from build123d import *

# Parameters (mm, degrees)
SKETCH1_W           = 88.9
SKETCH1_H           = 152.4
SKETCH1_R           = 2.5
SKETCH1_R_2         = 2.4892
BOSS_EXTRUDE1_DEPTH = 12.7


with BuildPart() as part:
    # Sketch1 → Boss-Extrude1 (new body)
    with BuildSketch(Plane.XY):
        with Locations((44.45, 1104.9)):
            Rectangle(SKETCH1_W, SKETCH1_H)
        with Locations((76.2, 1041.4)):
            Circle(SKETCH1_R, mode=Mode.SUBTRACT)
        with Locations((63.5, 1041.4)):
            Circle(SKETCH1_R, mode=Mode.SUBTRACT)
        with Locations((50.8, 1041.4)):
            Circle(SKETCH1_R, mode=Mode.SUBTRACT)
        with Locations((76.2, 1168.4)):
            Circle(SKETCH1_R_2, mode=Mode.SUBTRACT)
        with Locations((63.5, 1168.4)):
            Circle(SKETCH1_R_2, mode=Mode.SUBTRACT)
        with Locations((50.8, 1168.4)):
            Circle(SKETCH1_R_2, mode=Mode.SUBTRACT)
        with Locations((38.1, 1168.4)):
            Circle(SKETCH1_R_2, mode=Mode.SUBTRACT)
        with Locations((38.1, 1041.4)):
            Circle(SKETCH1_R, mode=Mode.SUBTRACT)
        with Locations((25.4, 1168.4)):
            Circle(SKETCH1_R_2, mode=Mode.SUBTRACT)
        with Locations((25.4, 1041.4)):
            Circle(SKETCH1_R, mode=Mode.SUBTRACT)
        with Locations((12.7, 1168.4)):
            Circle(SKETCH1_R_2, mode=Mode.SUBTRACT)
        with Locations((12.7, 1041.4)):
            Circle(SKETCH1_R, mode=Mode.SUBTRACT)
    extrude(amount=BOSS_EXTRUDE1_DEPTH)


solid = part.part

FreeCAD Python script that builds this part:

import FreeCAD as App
import Part
import Sketcher
Q = App.Units.Quantity

doc = App.newDocument("Part")
body = doc.addObject("PartDesign::Body", "Body")

# Sketch on XY plane
sketch1 = doc.addObject("Sketcher::SketchObject", "Sketch")
body.addObject(sketch1)
sketch1.AttachmentSupport = (doc.XY_Plane, [""])
sketch1.MapMode = "FlatFace"
sketch1.addGeometry([
    Part.LineSegment(App.Vector(0, 1181.1, 0), App.Vector(0, 1028.7, 0)),  # 0
    Part.LineSegment(App.Vector(0, 1028.7, 0), App.Vector(88.9, 1028.7, 0)),  # 1
    Part.LineSegment(App.Vector(88.9, 1028.7, 0), App.Vector(88.9, 1181.1, 0)),  # 2
    Part.LineSegment(App.Vector(88.9, 1181.1, 0), App.Vector(0, 1181.1, 0)),  # 3
    Part.Circle(App.Vector(12.7, 1041.4, 0), App.Vector(0, 0, 1), 2.5),  # 4
    Part.Circle(App.Vector(25.4, 1041.4, 0), App.Vector(0, 0, 1), 2.5),  # 5
    Part.Circle(App.Vector(38.1, 1041.4, 0), App.Vector(0, 0, 1), 2.5),  # 6
    Part.Circle(App.Vector(50.8, 1041.4, 0), App.Vector(0, 0, 1), 2.5),  # 7
    Part.Circle(App.Vector(63.5, 1041.4, 0), App.Vector(0, 0, 1), 2.5),  # 8
    Part.Circle(App.Vector(76.2, 1041.4, 0), App.Vector(0, 0, 1), 2.5),  # 9
    Part.Circle(App.Vector(12.7, 1168.4, 0), App.Vector(0, 0, 1), 2.4892),  # 10
    Part.Circle(App.Vector(25.4, 1168.4, 0), App.Vector(0, 0, 1), 2.4892),  # 11
    Part.Circle(App.Vector(38.1, 1168.4, 0), App.Vector(0, 0, 1), 2.4892),  # 12
    Part.Circle(App.Vector(50.8, 1168.4, 0), App.Vector(0, 0, 1), 2.4892),  # 13
    Part.Circle(App.Vector(63.5, 1168.4, 0), App.Vector(0, 0, 1), 2.4892),  # 14
    Part.Circle(App.Vector(76.2, 1168.4, 0), App.Vector(0, 0, 1), 2.4892),  # 15
], False)
sketch1.addConstraint([
    Sketcher.Constraint("Coincident", 0, 2, 1, 1),
    Sketcher.Constraint("Coincident", 1, 2, 2, 1),
    Sketcher.Constraint("Coincident", 2, 2, 3, 1),
    Sketcher.Constraint("Coincident", 3, 2, 0, 1),
    Sketcher.Constraint("Vertical", 0),
    Sketcher.Constraint("Horizontal", 1),
    Sketcher.Constraint("Vertical", 2),
    Sketcher.Constraint("Horizontal", 3),
    Sketcher.Constraint("Equal", 4, 5),
    Sketcher.Constraint("Equal", 5, 6),
    Sketcher.Constraint("Equal", 6, 7),
    Sketcher.Constraint("Equal", 7, 8),
    Sketcher.Constraint("Equal", 8, 9),
    Sketcher.Constraint("Equal", 10, 11),
    Sketcher.Constraint("Equal", 11, 12),
    Sketcher.Constraint("Equal", 12, 13),
    Sketcher.Constraint("Equal", 13, 14),
    Sketcher.Constraint("Equal", 14, 15),
    Sketcher.Constraint("PointOnObject", 0, 2, -2),
    Sketcher.Constraint("Horizontal", 4, 3, 5, 3),
    Sketcher.Constraint("Horizontal", 5, 3, 6, 3),
    Sketcher.Constraint("Horizontal", 6, 3, 7, 3),
    Sketcher.Constraint("Horizontal", 7, 3, 8, 3),
    Sketcher.Constraint("Horizontal", 8, 3, 9, 3),
    Sketcher.Constraint("Horizontal", 10, 3, 11, 3),
    Sketcher.Constraint("Horizontal", 11, 3, 12, 3),
    Sketcher.Constraint("Horizontal", 12, 3, 13, 3),
    Sketcher.Constraint("Horizontal", 13, 3, 14, 3),
    Sketcher.Constraint("Horizontal", 14, 3, 15, 3),
    Sketcher.Constraint("Vertical", 4, 3, 10, 3),
    Sketcher.Constraint("Vertical", 5, 3, 11, 3),
    Sketcher.Constraint("Vertical", 6, 3, 12, 3),
    Sketcher.Constraint("Vertical", 7, 3, 13, 3),
    Sketcher.Constraint("Vertical", 8, 3, 14, 3),
    Sketcher.Constraint("Vertical", 9, 3, 15, 3),
    Sketcher.Constraint("DistanceY", 0, 2, 0, 1, Q("6 in")),
    Sketcher.Constraint("Diameter", 10, Q("0.196 in")),
    Sketcher.Constraint("DistanceX", 1, 1, 1, 2, Q("3.5 in")),
    Sketcher.Constraint("DistanceY", -1, 1, 4, 3, Q("41 in")),
    Sketcher.Constraint("DistanceX", -1, 1, 5, 3, Q("1 in")),
    Sketcher.Constraint("DistanceX", -1, 1, 7, 3, Q("2 in")),
    Sketcher.Constraint("DistanceX", -1, 1, 9, 3, Q("3 in")),
    Sketcher.Constraint("DistanceY", -1, 1, 10, 3, Q("46 in")),
    Sketcher.Constraint("DistanceX", 4, 3, 6, 3, Q("1 in")),
    Sketcher.Constraint("DistanceX", 6, 3, 8, 3, Q("1 in")),
    Sketcher.Constraint("DistanceX", 8, 3, 1, 2, Q("1 in")),
    Sketcher.Constraint("DistanceY", -1, 1, 0, 2, Q("40.5 in")),
    Sketcher.Constraint("Diameter", 4, Q("5 mm")),
])
pad1 = doc.addObject("PartDesign::Pad", "Pad")
body.addObject(pad1)
pad1.Profile = sketch1
pad1.Length = Q("0.5 in")

doc.recompute()
